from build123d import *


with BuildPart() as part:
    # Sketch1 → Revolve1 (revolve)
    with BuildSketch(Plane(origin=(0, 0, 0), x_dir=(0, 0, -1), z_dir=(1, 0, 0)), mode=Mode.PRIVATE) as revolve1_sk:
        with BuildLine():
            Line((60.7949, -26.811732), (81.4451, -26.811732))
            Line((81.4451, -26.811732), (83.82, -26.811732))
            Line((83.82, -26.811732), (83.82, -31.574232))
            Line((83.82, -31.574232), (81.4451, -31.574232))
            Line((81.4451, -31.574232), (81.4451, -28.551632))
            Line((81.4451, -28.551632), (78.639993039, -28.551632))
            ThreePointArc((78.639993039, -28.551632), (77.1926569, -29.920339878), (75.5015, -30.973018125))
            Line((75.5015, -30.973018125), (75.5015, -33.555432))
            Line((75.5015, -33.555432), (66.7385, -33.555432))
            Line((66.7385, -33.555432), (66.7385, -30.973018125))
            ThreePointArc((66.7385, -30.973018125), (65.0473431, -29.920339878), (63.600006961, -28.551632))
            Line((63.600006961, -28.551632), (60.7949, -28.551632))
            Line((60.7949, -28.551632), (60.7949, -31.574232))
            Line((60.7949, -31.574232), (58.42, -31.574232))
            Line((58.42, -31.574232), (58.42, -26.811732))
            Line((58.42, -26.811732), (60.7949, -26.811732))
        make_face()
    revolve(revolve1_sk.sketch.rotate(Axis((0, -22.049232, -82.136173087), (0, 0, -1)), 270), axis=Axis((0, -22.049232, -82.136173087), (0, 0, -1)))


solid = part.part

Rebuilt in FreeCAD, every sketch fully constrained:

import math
import FreeCAD as App
import Part
import Sketcher
from FreeCAD import Vector
Q = App.Units.Quantity

doc = App.newDocument("Part")
body = doc.addObject("PartDesign::Body", "Body")

# Sketch on YZ plane
sketch1 = body.newObject("Sketcher::SketchObject", "Sketch")
sketch1.AttachmentSupport = (doc.getObject("YZ_Plane"), [""])
sketch1.MapMode = "FlatFace"
sketch1.addGeometry(Part.LineSegment(Vector(-31.6, -83.8, 0), Vector(-26.8, -83.8, 0)), False)
sketch1.addGeometry(Part.LineSegment(Vector(-26.8, -83.8, 0), Vector(-26.8, -58.4, 0)), False)
sketch1.addGeometry(Part.LineSegment(Vector(-26.8, -58.4, 0), Vector(-31.6, -58.4, 0)), False)
sketch1.addGeometry(Part.LineSegment(Vector(-31.6, -58.4, 0), Vector(-31.6, -60.8, 0)), False)
sketch1.addGeometry(Part.LineSegment(Vector(-31.6, -60.8, 0), Vector(-28.6, -60.8, 0)), False)
sketch1.addGeometry(Part.LineSegment(Vector(-28.6, -60.8, 0), Vector(-28.6, -63.6, 0)), False)
sketch1.addGeometry(Part.ArcOfCircle(Part.Circle(Vector(-22, -71.1, 0), Vector(0, 0, 1), 9.9), math.radians(131), math.radians(154)), False)
sketch1.addGeometry(Part.LineSegment(Vector(-31, -66.7, 0), Vector(-33.6, -66.7, 0)), False)
sketch1.addGeometry(Part.LineSegment(Vector(-33.6, -66.7, 0), Vector(-33.6, -75.5, 0)), False)
sketch1.addGeometry(Part.LineSegment(Vector(-33.6, -75.5, 0), Vector(-31, -75.5, 0)), False)
sketch1.addGeometry(Part.ArcOfCircle(Part.Circle(Vector(-22, -71.1, 0), Vector(0, 0, 1), 9.9), math.radians(-154), math.radians(-131)), False)
sketch1.addGeometry(Part.LineSegment(Vector(-28.6, -78.6, 0), Vector(-28.6, -81.4, 0)), False)
sketch1.addGeometry(Part.LineSegment(Vector(-28.6, -81.4, 0), Vector(-31.6, -81.4, 0)), False)
sketch1.addGeometry(Part.LineSegment(Vector(-31.6, -81.4, 0), Vector(-31.6, -83.8, 0)), False)
sketch1.addGeometry(Part.LineSegment(Vector(-22, -58.4, 0), Vector(-22, -83.8, 0)), True)  # axis
sketch1.addConstraint(Sketcher.Constraint("Coincident", 0, 2, 1, 1))
sketch1.addConstraint(Sketcher.Constraint("Coincident", 1, 2, 2, 1))
sketch1.addConstraint(Sketcher.Constraint("Coincident", 2, 2, 3, 1))
sketch1.addConstraint(Sketcher.Constraint("Coincident", 3, 2, 4, 1))
sketch1.addConstraint(Sketcher.Constraint("Coincident", 4, 2, 5, 1))
sketch1.addConstraint(Sketcher.Constraint("Coincident", 5, 2, 6, 1))
sketch1.addConstraint(Sketcher.Constraint("Coincident", 6, 2, 7, 1))
sketch1.addConstraint(Sketcher.Constraint("Coincident", 7, 2, 8, 1))
sketch1.addConstraint(Sketcher.Constraint("Coincident", 8, 2, 9, 1))
sketch1.addConstraint(Sketcher.Constraint("Coincident", 9, 2, 10, 1))
sketch1.addConstraint(Sketcher.Constraint("Coincident", 10, 2, 11, 1))
sketch1.addConstraint(Sketcher.Constraint("Coincident", 11, 2, 12, 1))
sketch1.addConstraint(Sketcher.Constraint("Coincident", 12, 2, 13, 1))
sketch1.addConstraint(Sketcher.Constraint("Coincident", 13, 2, 0, 1))
sketch1.addConstraint(Sketcher.Constraint("Horizontal", 0))
sketch1.addConstraint(Sketcher.Constraint("Vertical", 1))
sketch1.addConstraint(Sketcher.Constraint("Horizontal", 2))
sketch1.addConstraint(Sketcher.Constraint("Vertical", 3))
sketch1.addConstraint(Sketcher.Constraint("Horizontal", 4))
sketch1.addConstraint(Sketcher.Constraint("Vertical", 5))
sketch1.addConstraint(Sketcher.Constraint("Horizontal", 7))
sketch1.addConstraint(Sketcher.Constraint("Vertical", 8))
sketch1.addConstraint(Sketcher.Constraint("Horizontal", 9))
sketch1.addConstraint(Sketcher.Constraint("Vertical", 11))
sketch1.addConstraint(Sketcher.Constraint("Horizontal", 12))
sketch1.addConstraint(Sketcher.Constraint("Vertical", 13))
sketch1.addConstraint(Sketcher.Constraint("Vertical", 14))
sketch1.addConstraint(Sketcher.Constraint("Coincident", 10, 3, 6, 3))
sketch1.addConstraint(Sketcher.Constraint("Equal", 6, 10))
sketch1.addConstraint(Sketcher.Constraint("Horizontal", 2, 2, 14, 1))
sketch1.addConstraint(Sketcher.Constraint("Horizontal", 13, 2, 14, 2))
sketch1.addConstraint(Sketcher.Constraint("Vertical", 6, 2, 9, 2))
sketch1.addConstraint(Sketcher.Constraint("Vertical", 5, 2, 10, 2))
sketch1.addConstraint(Sketcher.Constraint("Vertical", 3, 2, 12, 2))
sketch1.addConstraint(Sketcher.Constraint("Vertical", 10, 3, 14, 1))
sketch1.addConstraint(Sketcher.Constraint("Equal", 5, 11))
sketch1.addConstraint(Sketcher.Constraint("Equal", 3, 13))
sketch1.addConstraint(Sketcher.Constraint("DistanceY", 1, 1, 1, 2, Q("1 in")))
sketch1.addConstraint(Sketcher.Constraint("DistanceY", 6, 3, -1, 1, Q("2.8 in")))
sketch1.addConstraint(Sketcher.Constraint("DistanceX", 0, 1, 0, 2, Q("0.1875 in")))
sketch1.addConstraint(Sketcher.Constraint("DistanceX", 4, 1, 4, 2, Q("0.119 in")))
sketch1.addConstraint(Sketcher.Constraint("DistanceY", 8, 2, 8, 1, Q("0.345 in")))
sketch1.addConstraint(Sketcher.Constraint("DistanceY", 3, 2, 3, 1, Q("0.0935 in")))
sketch1.addConstraint(Sketcher.Constraint("DistanceX", 0, 2, 6, 3, Q("0.1875 in")))
sketch1.addConstraint(Sketcher.Constraint("DistanceX", 7, 2, 5, 2, Q("0.197 in")))
sketch1.addConstraint(Sketcher.Constraint("Radius", 6, Q("9.941403 mm")))
sketch1.addConstraint(Sketcher.Constraint("DistanceX", 6, 3, -1, 1, Q("22.049232 mm")))
revolution = body.newObject("PartDesign::Revolution", "Revolution")
revolution.Profile = sketch1
revolution.ReferenceAxis = (sketch1, ["Axis0"])
revolution.Angle = 360

doc.recompute()
